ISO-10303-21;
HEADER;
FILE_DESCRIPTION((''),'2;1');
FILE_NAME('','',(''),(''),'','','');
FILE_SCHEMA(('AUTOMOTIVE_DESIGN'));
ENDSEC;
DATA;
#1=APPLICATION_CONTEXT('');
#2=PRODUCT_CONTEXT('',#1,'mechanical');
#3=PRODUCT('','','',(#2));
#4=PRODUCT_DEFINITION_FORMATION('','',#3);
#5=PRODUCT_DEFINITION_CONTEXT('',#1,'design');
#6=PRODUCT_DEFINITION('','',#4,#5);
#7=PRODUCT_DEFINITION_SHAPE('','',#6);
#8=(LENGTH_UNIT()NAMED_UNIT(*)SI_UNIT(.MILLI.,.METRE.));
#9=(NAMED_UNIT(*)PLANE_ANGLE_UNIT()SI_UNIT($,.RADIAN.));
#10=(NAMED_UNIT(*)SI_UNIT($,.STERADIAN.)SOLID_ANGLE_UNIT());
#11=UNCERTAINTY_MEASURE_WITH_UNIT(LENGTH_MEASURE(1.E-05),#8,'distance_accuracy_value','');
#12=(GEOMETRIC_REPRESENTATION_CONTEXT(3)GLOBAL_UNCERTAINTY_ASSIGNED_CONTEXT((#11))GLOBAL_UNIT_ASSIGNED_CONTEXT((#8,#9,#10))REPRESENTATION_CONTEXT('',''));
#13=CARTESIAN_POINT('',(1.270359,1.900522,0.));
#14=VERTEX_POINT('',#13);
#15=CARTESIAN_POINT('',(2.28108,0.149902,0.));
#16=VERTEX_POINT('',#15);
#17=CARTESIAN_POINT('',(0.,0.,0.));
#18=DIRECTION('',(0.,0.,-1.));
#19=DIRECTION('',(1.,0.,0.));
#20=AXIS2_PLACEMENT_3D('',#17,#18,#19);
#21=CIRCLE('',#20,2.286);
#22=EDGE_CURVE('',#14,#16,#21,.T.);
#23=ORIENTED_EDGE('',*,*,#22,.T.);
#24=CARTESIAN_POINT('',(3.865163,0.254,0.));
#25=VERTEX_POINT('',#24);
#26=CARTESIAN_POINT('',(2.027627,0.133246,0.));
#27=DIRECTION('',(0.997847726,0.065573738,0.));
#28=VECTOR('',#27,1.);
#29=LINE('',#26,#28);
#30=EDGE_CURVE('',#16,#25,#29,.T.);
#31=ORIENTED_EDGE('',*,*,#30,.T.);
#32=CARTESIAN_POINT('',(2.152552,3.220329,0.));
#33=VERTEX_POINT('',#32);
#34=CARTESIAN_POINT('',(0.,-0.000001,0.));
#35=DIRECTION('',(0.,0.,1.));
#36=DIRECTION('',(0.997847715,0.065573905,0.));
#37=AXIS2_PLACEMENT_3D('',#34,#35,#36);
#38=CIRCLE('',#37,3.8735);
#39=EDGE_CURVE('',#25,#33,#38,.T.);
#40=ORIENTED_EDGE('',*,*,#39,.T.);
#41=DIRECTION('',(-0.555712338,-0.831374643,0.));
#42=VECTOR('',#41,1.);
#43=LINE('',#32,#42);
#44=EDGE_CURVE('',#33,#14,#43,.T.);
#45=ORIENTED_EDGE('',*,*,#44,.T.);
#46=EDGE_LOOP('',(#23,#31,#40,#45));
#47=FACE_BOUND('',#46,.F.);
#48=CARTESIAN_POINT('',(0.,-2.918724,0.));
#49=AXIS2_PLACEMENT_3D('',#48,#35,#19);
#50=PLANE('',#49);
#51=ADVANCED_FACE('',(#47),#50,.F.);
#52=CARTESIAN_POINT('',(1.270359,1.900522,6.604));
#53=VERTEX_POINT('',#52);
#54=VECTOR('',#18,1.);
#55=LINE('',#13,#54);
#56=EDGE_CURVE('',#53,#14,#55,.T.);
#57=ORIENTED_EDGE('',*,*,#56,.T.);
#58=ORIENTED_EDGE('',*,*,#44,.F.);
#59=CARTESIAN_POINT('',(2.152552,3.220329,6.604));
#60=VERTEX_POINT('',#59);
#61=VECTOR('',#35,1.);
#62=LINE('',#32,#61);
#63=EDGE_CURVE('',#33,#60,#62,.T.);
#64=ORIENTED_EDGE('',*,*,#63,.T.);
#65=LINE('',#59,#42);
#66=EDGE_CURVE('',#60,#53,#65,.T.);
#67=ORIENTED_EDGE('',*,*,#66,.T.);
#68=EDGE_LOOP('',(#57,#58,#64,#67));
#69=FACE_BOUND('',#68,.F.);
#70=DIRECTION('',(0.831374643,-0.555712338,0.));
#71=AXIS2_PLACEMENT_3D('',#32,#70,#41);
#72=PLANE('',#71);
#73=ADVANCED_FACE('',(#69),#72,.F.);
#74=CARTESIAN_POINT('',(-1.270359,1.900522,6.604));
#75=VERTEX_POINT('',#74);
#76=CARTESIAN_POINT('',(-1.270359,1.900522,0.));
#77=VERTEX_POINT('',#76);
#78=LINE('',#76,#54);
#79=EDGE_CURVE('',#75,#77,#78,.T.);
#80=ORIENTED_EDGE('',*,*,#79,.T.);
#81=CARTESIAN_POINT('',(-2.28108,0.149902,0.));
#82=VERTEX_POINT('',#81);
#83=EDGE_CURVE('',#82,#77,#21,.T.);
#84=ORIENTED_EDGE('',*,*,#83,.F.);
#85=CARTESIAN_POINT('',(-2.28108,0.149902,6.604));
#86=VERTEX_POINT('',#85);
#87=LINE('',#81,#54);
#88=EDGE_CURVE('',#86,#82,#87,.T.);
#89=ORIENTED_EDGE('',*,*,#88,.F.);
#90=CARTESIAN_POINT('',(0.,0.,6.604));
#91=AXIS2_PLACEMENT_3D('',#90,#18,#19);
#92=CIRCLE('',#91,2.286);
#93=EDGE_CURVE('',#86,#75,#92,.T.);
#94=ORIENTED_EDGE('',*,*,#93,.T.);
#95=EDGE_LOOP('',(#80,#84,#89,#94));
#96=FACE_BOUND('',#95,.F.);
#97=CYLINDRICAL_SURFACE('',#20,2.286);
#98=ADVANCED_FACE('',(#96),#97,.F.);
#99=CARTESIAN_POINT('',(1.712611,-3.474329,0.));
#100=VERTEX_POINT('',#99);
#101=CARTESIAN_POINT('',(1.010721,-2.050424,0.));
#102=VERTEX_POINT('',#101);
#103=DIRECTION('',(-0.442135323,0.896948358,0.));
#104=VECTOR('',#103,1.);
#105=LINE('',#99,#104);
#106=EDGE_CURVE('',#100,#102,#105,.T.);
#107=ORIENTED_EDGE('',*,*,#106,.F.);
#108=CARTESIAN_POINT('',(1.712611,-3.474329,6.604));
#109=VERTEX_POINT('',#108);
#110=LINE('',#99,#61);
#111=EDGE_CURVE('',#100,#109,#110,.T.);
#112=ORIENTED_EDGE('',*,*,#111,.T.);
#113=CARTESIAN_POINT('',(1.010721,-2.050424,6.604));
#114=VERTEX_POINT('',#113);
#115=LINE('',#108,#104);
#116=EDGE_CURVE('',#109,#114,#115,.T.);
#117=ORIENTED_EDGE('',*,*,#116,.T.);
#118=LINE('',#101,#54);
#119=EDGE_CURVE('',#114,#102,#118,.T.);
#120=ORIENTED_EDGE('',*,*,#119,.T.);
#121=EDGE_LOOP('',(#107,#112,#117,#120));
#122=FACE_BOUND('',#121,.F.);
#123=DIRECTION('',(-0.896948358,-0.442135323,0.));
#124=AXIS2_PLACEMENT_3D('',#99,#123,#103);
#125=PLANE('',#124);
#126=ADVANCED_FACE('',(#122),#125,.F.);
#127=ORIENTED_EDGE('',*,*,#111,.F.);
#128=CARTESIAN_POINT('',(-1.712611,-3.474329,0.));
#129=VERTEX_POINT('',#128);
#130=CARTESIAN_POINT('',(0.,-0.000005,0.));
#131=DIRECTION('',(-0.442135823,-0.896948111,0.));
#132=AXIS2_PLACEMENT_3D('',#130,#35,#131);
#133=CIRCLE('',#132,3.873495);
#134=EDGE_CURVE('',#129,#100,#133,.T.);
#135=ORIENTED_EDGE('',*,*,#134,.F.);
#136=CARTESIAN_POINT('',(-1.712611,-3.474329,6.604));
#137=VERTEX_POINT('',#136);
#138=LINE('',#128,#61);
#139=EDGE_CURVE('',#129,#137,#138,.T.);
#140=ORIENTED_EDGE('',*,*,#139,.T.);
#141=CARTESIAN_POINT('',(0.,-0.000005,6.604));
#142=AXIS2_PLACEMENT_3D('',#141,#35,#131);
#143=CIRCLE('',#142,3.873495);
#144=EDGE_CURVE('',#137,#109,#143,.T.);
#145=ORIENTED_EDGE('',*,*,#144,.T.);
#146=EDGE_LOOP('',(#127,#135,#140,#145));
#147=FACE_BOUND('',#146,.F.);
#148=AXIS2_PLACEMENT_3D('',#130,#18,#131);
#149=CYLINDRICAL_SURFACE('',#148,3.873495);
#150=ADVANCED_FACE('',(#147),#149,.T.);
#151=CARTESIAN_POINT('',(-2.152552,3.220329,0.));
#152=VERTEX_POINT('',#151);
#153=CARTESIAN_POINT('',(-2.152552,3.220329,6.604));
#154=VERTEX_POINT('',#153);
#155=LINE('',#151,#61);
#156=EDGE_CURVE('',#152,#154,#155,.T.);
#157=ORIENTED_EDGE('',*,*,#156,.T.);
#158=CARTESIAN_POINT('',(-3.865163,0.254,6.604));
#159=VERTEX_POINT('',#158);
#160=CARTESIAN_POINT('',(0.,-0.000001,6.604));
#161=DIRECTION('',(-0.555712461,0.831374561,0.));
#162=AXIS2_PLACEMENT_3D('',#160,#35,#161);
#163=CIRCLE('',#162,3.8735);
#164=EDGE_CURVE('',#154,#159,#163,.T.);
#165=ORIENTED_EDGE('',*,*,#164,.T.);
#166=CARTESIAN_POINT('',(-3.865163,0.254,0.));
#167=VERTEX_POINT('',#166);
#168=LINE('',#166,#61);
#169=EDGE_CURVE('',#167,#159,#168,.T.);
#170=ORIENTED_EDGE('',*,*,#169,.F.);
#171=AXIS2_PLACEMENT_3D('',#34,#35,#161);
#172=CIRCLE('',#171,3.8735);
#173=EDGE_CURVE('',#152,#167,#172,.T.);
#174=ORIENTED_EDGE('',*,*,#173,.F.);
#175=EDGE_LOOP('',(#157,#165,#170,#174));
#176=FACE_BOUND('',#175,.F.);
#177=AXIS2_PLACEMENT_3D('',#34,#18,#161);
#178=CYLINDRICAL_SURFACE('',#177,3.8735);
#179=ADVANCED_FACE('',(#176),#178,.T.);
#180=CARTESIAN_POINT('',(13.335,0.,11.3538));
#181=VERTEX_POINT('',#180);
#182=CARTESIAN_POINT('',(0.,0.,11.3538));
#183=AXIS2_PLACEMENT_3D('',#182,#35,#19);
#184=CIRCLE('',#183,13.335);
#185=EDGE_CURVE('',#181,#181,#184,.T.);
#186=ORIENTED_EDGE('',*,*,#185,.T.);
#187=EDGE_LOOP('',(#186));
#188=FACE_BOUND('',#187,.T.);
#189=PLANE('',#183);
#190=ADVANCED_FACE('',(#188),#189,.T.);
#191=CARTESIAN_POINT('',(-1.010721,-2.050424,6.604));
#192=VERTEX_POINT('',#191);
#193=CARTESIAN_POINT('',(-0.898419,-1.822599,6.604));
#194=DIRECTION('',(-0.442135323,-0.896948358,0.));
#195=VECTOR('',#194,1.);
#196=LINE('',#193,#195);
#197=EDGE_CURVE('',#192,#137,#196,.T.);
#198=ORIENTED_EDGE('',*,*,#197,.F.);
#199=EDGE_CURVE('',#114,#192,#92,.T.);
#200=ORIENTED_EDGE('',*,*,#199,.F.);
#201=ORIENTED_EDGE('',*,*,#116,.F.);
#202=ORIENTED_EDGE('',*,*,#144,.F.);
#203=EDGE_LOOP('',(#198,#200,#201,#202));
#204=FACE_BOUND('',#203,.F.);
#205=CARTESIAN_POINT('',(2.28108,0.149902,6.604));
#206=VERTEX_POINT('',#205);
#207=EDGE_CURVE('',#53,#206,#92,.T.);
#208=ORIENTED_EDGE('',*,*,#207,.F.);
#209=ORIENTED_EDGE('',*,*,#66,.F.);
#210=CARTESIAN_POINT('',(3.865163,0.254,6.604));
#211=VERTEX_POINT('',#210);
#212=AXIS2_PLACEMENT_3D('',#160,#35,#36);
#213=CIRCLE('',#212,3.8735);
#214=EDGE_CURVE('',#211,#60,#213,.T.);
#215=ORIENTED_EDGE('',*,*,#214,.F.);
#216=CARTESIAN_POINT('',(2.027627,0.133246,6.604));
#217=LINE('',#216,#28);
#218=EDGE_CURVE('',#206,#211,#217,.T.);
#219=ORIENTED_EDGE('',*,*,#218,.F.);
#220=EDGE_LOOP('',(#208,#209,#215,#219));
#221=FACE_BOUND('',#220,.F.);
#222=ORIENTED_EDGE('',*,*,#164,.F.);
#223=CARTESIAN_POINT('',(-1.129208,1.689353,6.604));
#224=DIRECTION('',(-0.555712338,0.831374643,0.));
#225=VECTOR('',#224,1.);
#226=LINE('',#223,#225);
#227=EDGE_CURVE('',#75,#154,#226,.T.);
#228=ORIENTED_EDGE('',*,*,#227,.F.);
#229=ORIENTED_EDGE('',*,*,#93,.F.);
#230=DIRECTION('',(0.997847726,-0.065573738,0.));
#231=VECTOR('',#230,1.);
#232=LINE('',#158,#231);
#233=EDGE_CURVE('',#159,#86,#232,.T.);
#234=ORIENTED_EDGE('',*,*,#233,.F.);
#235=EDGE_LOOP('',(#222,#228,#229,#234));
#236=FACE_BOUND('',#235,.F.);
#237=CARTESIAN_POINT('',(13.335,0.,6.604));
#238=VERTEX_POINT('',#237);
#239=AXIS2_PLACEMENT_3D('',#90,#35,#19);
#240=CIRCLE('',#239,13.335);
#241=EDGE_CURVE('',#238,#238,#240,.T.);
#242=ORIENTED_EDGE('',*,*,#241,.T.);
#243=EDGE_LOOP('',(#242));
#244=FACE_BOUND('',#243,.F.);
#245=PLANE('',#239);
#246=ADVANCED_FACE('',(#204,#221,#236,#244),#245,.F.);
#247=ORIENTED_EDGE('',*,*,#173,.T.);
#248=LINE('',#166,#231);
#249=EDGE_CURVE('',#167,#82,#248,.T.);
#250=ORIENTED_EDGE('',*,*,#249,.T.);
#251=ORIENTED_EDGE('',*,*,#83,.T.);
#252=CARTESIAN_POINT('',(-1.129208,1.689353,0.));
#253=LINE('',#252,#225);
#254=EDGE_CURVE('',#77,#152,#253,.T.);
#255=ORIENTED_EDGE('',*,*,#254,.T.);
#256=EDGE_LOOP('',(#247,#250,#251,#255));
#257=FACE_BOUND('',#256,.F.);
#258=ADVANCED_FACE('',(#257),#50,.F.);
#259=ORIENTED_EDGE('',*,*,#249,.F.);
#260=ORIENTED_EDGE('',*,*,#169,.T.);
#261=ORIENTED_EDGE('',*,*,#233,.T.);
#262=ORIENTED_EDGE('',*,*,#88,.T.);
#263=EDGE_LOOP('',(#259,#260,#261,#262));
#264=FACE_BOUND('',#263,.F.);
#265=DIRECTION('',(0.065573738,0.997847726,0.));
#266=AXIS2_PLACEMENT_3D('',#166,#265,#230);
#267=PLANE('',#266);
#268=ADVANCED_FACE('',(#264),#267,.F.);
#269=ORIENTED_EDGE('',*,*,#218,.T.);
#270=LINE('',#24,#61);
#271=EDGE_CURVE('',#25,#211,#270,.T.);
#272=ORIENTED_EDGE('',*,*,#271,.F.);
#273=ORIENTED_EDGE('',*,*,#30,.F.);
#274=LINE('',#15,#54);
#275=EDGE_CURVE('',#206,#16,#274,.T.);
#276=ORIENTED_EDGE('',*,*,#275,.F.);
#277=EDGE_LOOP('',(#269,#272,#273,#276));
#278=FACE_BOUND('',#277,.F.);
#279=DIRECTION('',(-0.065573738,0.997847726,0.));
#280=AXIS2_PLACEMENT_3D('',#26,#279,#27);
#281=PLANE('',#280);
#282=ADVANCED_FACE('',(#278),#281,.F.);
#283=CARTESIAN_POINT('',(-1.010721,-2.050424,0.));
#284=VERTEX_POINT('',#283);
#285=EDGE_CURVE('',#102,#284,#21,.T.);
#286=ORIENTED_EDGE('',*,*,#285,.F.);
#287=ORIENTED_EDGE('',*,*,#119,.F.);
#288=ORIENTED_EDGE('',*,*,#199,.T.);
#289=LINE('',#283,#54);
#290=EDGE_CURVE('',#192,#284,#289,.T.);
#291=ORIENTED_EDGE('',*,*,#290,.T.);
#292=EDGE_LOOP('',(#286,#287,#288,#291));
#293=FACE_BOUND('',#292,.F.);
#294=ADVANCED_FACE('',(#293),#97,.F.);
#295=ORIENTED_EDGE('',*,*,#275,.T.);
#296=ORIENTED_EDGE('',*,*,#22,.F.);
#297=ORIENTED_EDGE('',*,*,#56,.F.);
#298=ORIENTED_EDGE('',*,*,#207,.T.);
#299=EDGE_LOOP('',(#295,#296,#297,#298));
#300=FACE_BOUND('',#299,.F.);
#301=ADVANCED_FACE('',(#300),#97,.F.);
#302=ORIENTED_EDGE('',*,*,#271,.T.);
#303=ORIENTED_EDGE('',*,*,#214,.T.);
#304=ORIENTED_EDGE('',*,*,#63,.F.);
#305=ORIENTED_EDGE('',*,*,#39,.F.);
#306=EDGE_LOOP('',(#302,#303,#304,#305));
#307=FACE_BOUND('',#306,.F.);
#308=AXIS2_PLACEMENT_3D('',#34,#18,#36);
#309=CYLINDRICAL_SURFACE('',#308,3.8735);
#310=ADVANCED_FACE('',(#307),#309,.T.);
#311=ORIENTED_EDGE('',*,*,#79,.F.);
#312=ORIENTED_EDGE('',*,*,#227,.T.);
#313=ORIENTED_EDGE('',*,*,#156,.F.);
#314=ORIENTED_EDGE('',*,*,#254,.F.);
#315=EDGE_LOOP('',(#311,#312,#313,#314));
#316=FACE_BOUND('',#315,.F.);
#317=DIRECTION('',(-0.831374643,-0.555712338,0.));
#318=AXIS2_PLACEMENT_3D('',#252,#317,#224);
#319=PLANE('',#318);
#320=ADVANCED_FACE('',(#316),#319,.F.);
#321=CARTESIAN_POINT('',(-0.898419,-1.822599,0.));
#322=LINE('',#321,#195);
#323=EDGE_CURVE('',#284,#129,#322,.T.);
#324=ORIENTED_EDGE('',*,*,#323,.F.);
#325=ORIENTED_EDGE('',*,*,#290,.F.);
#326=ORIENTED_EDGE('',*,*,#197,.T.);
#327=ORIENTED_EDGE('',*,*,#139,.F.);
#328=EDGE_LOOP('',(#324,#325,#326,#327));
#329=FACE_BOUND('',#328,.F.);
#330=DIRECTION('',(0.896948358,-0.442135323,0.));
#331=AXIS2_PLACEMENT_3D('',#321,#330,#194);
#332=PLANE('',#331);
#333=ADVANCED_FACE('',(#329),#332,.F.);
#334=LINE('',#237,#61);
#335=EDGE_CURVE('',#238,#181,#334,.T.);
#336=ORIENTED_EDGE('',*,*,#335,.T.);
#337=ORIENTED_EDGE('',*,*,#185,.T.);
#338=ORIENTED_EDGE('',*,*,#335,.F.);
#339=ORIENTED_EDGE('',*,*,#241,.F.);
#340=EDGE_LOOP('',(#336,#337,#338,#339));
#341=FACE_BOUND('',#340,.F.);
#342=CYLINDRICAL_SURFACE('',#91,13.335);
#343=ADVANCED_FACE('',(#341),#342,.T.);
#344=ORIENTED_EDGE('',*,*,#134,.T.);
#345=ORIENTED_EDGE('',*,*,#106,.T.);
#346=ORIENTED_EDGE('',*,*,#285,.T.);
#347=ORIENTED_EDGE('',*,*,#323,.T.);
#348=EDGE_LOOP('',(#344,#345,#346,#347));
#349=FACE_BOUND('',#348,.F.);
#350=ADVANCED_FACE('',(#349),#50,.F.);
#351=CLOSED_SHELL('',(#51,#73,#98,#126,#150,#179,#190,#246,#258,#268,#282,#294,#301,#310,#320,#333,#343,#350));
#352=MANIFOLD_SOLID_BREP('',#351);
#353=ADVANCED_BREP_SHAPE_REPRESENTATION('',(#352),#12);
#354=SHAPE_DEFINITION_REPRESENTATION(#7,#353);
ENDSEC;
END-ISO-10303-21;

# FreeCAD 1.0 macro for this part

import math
import FreeCAD as App
import Part
import Sketcher
Q = App.Units.Quantity

doc = App.newDocument("Part")
params = doc.addObject("Spreadsheet::Sheet", "Params")
for row, (alias, value) in enumerate([
    ("sketch1_radius", "0.08 in"),
    ("pad1_length", "0.26 in"),
    ("sketch2_diameter", "1.05 in"),
    ("pad2_length", "0.187 in"),
    ("sketch3_diameter", "0.18 in"),
    ("pocket1_length", "0.26 in"),
], start=1):
    params.set(f"A{row}", alias)
    params.set(f"B{row}", "=" + value)
    params.setAlias(f"B{row}", alias)

body = doc.addObject("PartDesign::Body", "Body")

# Sketch on XY plane
sketch1 = body.newObject("Sketcher::SketchObject", "Sketch")
sketch1.AttachmentSupport = (doc.getObject("XY_Plane"), [""])
sketch1.MapMode = "FlatFace"
sketch1.addGeometry([
    Part.ArcOfCircle(Part.Circle(App.Vector(0, -0.000005, 0), App.Vector(0, 0, 1), 3.873495), math.radians(-116.240235), math.radians(-63.759765)),  # 0
    Part.LineSegment(App.Vector(1.712611, -3.474329, 0), App.Vector(0.898419, -1.822599, 0)),  # 1
    Part.ArcOfCircle(Part.Circle(App.Vector(0.000075, -0.000128, 0), App.Vector(0, 0, 1), 2.031852), math.radians(-63.760094), math.radians(-56.23994)),  # 2
    Part.ArcOfCircle(Part.Circle(App.Vector(0.000001, 0, 0), App.Vector(0, 0, 1), 2.032), math.radians(-56.240211), math.radians(-3.759801)),  # 3
    Part.ArcOfCircle(Part.Circle(App.Vector(-0.001038, 0.000028, 0), App.Vector(0, 0, 1), 2.033038), math.radians(-3.758655), math.radians(-0.000776)),  # 4
    Part.ArcOfCircle(Part.Circle(App.Vector(-0.001038, -0.000028, 0), App.Vector(0, 0, 1), 2.033038), math.radians(0.000776), math.radians(3.758655)),  # 5
    Part.LineSegment(App.Vector(2.027627, 0.133246, 0), App.Vector(3.865163, 0.254, 0)),  # 6
    Part.ArcOfCircle(Part.Circle(App.Vector(0, -0.000001, 0), App.Vector(0, 0, 1), 3.8735), math.radians(3.759806), math.radians(56.240199)),  # 7
    Part.LineSegment(App.Vector(2.152552, 3.220329, 0), App.Vector(1.129208, 1.689353, 0)),  # 8
    Part.ArcOfCircle(Part.Circle(App.Vector(0.000075, 0.000128, 0), App.Vector(0, 0, 1), 2.031852), math.radians(56.23994), math.radians(63.760094)),  # 9
    Part.ArcOfCircle(Part.Circle(App.Vector(0, 0, 0), App.Vector(0, 0, 1), 2.032), math.radians(63.75979), math.radians(116.24021)),  # 10
    Part.ArcOfCircle(Part.Circle(App.Vector(-0.000075, 0.000128, 0), App.Vector(0, 0, 1), 2.031852), math.radians(116.239906), math.radians(123.76006)),  # 11
    Part.LineSegment(App.Vector(-1.129208, 1.689353, 0), App.Vector(-2.152552, 3.220329, 0)),  # 12
    Part.ArcOfCircle(Part.Circle(App.Vector(0, -0.000001, 0), App.Vector(0, 0, 1), 3.8735), math.radians(123.759801), math.radians(176.240194)),  # 13
    Part.LineSegment(App.Vector(-3.865163, 0.254, 0), App.Vector(-2.027627, 0.133246, 0)),  # 14
    Part.ArcOfCircle(Part.Circle(App.Vector(0.0002, 0, 0), App.Vector(0, 0, 1), 2.0322), math.radians(176.240569), math.radians(183.759431)),  # 15
    Part.ArcOfCircle(Part.Circle(App.Vector(-0.000001, 0, 0), App.Vector(0, 0, 1), 2.032), math.radians(-176.240199), math.radians(-123.759789)),  # 16
    Part.ArcOfCircle(Part.Circle(App.Vector(-0.000075, -0.000128, 0), App.Vector(0, 0, 1), 2.031852), math.radians(-123.76006), math.radians(-116.239906)),  # 17
    Part.LineSegment(App.Vector(-0.898419, -1.822599, 0), App.Vector(-1.712611, -3.474329, 0)),  # 18
], False)
sketch1.addConstraint([
    Sketcher.Constraint("Coincident", 0, 2, 1, 1),
    Sketcher.Constraint("Coincident", 1, 2, 2, 1),
    Sketcher.Constraint("Coincident", 2, 2, 3, 1),
    Sketcher.Constraint("Coincident", 3, 2, 4, 1),
    Sketcher.Constraint("Coincident", 4, 2, 5, 1),
    Sketcher.Constraint("Coincident", 5, 2, 6, 1),
    Sketcher.Constraint("Coincident", 6, 2, 7, 1),
    Sketcher.Constraint("Coincident", 7, 2, 8, 1),
    Sketcher.Constraint("Coincident", 8, 2, 9, 1),
    Sketcher.Constraint("Coincident", 9, 2, 10, 1),
    Sketcher.Constraint("Coincident", 10, 2, 11, 1),
    Sketcher.Constraint("Coincident", 11, 2, 12, 1),
    Sketcher.Constraint("Coincident", 12, 2, 13, 1),
    Sketcher.Constraint("Coincident", 13, 2, 14, 1),
    Sketcher.Constraint("Coincident", 14, 2, 15, 1),
    Sketcher.Constraint("Coincident", 15, 2, 16, 1),
    Sketcher.Constraint("Coincident", 16, 2, 17, 1),
    Sketcher.Constraint("Coincident", 17, 2, 18, 1),
    Sketcher.Constraint("Coincident", 18, 2, 0, 1),
    Sketcher.Constraint("Coincident", 0, 3, -1, 1),
    Sketcher.Constraint("Coincident", 3, 3, -1, 1),
    Sketcher.Constraint("Coincident", 7, 3, -1, 1),
    Sketcher.Constraint("Coincident", 10, 3, -1, 1),
    Sketcher.Constraint("Coincident", 13, 3, -1, 1),
    Sketcher.Constraint("Coincident", 16, 3, -1, 1),
    Sketcher.Constraint("Equal", 4, 5),
    Sketcher.Constraint("Equal", 2, 9),
    Sketcher.Constraint("Equal", 3, 10),
    Sketcher.Constraint("Equal", 9, 11),
    Sketcher.Constraint("Equal", 7, 13),
    Sketcher.Constraint("Equal", 10, 16),
    Sketcher.Constraint("Equal", 11, 17),
    Sketcher.Constraint("Symmetric", 2, 3, 11, 3, -1, 1),
    Sketcher.Constraint("Symmetric", 9, 3, 17, 3, -1, 1),
    Sketcher.Constraint("Symmetric", 3, 2, 14, 2, -1, 1),
    Sketcher.Constraint("Symmetric", 5, 2, 15, 2, -1, 1),
    Sketcher.Constraint("PointOnObject", 4, 2, -1),
    Sketcher.Constraint("Horizontal", 9, 2, 10, 2),
    Sketcher.Constraint("Horizontal", 8, 2, 11, 2),
    Sketcher.Constraint("Horizontal", 7, 2, 12, 2),
    Sketcher.Constraint("Horizontal", 6, 2, 13, 2),
    Sketcher.Constraint("Horizontal", 5, 2, 14, 2),
    Sketcher.Constraint("Horizontal", 2, 2, 16, 2),
    Sketcher.Constraint("Horizontal", 1, 2, 17, 2),
    Sketcher.Constraint("Horizontal", 0, 2, 18, 2),
    Sketcher.Constraint("Vertical", 2, 2, 8, 2),
    Sketcher.Constraint("Vertical", 1, 2, 9, 2),
    Sketcher.Constraint("Equal", 1, 6),
    Sketcher.Constraint("Radius", 3, Q("0.08 in")),
    Sketcher.Constraint("Radius", 0, Q("0.1524998 in")),
    Sketcher.Constraint("DistanceX", -1, 1, 4, 2, Q("0.08 in")),
    Sketcher.Constraint("DistanceY", -1, 1, 6, 2, Q("0.01 in")),
    Sketcher.Constraint("Radius", 15, 2.0322),
    Sketcher.Constraint("Radius", 4, 2.033038),
    Sketcher.Constraint("Radius", 2, 2.031852),
    Sketcher.Constraint("DistanceY", 1, 2, -1, 1, 1.822599),
    Sketcher.Constraint("DistanceY", 0, 2, 2, 3, 3.474201),
    Sketcher.Constraint("DistanceY", 9, 3, 7, 2, 3.220201),
    Sketcher.Constraint("DistanceX", 1, 2, 2, 2, 0.230789),
    Sketcher.Constraint("DistanceX", 2, 2, 3, 2, 0.898419),
])
sketch1.setExpression("Constraints[48]", "Params.sketch1_radius")
pad1 = body.newObject("PartDesign::Pad", "Pad")
pad1.Profile = sketch1
pad1.setExpression("Length", "Params.pad1_length")

# Sketch on XY plane
sketch2 = body.newObject("Sketcher::SketchObject", "Sketch001")
sketch2.AttachmentSupport = (doc.getObject("XY_Plane"), [""])
sketch2.MapMode = "FlatFace"
sketch2.AttachmentOffset = App.Placement(App.Vector(0, 0, 0.26 * 25.4), App.Rotation())
sketch2.addGeometry(Part.Circle(App.Vector(0, 0, 0), App.Vector(0, 0, 1), 13), False)
sketch2.addConstraint([
    Sketcher.Constraint("Coincident", 0, 3, -1, 1),
    Sketcher.Constraint("Diameter", 0, Q("1.05 in")),
])
sketch2.setExpression("Constraints[1]", "Params.sketch2_diameter")
pad2 = body.newObject("PartDesign::Pad", "Pad001")
pad2.Profile = sketch2
pad2.setExpression("Length", "Params.pad2_length")

# Sketch on XY plane
sketch3 = body.newObject("Sketcher::SketchObject", "Sketch002")
sketch3.AttachmentSupport = (doc.getObject("XY_Plane"), [""])
sketch3.MapMode = "FlatFace"
sketch3.addGeometry(Part.Circle(App.Vector(0, 0, 0), App.Vector(0, 0, 1), 2.3), False)
sketch3.addConstraint([
    Sketcher.Constraint("Coincident", 0, 3, -1, 1),
    Sketcher.Constraint("Diameter", 0, Q("0.18 in")),
])
sketch3.setExpression("Constraints[1]", "Params.sketch3_diameter")
pocket1 = body.newObject("PartDesign::Pocket", "Pocket")
pocket1.Profile = sketch3
pocket1.setExpression("Length", "Params.pocket1_length")
pocket1.Reversed = True

doc.recompute()
